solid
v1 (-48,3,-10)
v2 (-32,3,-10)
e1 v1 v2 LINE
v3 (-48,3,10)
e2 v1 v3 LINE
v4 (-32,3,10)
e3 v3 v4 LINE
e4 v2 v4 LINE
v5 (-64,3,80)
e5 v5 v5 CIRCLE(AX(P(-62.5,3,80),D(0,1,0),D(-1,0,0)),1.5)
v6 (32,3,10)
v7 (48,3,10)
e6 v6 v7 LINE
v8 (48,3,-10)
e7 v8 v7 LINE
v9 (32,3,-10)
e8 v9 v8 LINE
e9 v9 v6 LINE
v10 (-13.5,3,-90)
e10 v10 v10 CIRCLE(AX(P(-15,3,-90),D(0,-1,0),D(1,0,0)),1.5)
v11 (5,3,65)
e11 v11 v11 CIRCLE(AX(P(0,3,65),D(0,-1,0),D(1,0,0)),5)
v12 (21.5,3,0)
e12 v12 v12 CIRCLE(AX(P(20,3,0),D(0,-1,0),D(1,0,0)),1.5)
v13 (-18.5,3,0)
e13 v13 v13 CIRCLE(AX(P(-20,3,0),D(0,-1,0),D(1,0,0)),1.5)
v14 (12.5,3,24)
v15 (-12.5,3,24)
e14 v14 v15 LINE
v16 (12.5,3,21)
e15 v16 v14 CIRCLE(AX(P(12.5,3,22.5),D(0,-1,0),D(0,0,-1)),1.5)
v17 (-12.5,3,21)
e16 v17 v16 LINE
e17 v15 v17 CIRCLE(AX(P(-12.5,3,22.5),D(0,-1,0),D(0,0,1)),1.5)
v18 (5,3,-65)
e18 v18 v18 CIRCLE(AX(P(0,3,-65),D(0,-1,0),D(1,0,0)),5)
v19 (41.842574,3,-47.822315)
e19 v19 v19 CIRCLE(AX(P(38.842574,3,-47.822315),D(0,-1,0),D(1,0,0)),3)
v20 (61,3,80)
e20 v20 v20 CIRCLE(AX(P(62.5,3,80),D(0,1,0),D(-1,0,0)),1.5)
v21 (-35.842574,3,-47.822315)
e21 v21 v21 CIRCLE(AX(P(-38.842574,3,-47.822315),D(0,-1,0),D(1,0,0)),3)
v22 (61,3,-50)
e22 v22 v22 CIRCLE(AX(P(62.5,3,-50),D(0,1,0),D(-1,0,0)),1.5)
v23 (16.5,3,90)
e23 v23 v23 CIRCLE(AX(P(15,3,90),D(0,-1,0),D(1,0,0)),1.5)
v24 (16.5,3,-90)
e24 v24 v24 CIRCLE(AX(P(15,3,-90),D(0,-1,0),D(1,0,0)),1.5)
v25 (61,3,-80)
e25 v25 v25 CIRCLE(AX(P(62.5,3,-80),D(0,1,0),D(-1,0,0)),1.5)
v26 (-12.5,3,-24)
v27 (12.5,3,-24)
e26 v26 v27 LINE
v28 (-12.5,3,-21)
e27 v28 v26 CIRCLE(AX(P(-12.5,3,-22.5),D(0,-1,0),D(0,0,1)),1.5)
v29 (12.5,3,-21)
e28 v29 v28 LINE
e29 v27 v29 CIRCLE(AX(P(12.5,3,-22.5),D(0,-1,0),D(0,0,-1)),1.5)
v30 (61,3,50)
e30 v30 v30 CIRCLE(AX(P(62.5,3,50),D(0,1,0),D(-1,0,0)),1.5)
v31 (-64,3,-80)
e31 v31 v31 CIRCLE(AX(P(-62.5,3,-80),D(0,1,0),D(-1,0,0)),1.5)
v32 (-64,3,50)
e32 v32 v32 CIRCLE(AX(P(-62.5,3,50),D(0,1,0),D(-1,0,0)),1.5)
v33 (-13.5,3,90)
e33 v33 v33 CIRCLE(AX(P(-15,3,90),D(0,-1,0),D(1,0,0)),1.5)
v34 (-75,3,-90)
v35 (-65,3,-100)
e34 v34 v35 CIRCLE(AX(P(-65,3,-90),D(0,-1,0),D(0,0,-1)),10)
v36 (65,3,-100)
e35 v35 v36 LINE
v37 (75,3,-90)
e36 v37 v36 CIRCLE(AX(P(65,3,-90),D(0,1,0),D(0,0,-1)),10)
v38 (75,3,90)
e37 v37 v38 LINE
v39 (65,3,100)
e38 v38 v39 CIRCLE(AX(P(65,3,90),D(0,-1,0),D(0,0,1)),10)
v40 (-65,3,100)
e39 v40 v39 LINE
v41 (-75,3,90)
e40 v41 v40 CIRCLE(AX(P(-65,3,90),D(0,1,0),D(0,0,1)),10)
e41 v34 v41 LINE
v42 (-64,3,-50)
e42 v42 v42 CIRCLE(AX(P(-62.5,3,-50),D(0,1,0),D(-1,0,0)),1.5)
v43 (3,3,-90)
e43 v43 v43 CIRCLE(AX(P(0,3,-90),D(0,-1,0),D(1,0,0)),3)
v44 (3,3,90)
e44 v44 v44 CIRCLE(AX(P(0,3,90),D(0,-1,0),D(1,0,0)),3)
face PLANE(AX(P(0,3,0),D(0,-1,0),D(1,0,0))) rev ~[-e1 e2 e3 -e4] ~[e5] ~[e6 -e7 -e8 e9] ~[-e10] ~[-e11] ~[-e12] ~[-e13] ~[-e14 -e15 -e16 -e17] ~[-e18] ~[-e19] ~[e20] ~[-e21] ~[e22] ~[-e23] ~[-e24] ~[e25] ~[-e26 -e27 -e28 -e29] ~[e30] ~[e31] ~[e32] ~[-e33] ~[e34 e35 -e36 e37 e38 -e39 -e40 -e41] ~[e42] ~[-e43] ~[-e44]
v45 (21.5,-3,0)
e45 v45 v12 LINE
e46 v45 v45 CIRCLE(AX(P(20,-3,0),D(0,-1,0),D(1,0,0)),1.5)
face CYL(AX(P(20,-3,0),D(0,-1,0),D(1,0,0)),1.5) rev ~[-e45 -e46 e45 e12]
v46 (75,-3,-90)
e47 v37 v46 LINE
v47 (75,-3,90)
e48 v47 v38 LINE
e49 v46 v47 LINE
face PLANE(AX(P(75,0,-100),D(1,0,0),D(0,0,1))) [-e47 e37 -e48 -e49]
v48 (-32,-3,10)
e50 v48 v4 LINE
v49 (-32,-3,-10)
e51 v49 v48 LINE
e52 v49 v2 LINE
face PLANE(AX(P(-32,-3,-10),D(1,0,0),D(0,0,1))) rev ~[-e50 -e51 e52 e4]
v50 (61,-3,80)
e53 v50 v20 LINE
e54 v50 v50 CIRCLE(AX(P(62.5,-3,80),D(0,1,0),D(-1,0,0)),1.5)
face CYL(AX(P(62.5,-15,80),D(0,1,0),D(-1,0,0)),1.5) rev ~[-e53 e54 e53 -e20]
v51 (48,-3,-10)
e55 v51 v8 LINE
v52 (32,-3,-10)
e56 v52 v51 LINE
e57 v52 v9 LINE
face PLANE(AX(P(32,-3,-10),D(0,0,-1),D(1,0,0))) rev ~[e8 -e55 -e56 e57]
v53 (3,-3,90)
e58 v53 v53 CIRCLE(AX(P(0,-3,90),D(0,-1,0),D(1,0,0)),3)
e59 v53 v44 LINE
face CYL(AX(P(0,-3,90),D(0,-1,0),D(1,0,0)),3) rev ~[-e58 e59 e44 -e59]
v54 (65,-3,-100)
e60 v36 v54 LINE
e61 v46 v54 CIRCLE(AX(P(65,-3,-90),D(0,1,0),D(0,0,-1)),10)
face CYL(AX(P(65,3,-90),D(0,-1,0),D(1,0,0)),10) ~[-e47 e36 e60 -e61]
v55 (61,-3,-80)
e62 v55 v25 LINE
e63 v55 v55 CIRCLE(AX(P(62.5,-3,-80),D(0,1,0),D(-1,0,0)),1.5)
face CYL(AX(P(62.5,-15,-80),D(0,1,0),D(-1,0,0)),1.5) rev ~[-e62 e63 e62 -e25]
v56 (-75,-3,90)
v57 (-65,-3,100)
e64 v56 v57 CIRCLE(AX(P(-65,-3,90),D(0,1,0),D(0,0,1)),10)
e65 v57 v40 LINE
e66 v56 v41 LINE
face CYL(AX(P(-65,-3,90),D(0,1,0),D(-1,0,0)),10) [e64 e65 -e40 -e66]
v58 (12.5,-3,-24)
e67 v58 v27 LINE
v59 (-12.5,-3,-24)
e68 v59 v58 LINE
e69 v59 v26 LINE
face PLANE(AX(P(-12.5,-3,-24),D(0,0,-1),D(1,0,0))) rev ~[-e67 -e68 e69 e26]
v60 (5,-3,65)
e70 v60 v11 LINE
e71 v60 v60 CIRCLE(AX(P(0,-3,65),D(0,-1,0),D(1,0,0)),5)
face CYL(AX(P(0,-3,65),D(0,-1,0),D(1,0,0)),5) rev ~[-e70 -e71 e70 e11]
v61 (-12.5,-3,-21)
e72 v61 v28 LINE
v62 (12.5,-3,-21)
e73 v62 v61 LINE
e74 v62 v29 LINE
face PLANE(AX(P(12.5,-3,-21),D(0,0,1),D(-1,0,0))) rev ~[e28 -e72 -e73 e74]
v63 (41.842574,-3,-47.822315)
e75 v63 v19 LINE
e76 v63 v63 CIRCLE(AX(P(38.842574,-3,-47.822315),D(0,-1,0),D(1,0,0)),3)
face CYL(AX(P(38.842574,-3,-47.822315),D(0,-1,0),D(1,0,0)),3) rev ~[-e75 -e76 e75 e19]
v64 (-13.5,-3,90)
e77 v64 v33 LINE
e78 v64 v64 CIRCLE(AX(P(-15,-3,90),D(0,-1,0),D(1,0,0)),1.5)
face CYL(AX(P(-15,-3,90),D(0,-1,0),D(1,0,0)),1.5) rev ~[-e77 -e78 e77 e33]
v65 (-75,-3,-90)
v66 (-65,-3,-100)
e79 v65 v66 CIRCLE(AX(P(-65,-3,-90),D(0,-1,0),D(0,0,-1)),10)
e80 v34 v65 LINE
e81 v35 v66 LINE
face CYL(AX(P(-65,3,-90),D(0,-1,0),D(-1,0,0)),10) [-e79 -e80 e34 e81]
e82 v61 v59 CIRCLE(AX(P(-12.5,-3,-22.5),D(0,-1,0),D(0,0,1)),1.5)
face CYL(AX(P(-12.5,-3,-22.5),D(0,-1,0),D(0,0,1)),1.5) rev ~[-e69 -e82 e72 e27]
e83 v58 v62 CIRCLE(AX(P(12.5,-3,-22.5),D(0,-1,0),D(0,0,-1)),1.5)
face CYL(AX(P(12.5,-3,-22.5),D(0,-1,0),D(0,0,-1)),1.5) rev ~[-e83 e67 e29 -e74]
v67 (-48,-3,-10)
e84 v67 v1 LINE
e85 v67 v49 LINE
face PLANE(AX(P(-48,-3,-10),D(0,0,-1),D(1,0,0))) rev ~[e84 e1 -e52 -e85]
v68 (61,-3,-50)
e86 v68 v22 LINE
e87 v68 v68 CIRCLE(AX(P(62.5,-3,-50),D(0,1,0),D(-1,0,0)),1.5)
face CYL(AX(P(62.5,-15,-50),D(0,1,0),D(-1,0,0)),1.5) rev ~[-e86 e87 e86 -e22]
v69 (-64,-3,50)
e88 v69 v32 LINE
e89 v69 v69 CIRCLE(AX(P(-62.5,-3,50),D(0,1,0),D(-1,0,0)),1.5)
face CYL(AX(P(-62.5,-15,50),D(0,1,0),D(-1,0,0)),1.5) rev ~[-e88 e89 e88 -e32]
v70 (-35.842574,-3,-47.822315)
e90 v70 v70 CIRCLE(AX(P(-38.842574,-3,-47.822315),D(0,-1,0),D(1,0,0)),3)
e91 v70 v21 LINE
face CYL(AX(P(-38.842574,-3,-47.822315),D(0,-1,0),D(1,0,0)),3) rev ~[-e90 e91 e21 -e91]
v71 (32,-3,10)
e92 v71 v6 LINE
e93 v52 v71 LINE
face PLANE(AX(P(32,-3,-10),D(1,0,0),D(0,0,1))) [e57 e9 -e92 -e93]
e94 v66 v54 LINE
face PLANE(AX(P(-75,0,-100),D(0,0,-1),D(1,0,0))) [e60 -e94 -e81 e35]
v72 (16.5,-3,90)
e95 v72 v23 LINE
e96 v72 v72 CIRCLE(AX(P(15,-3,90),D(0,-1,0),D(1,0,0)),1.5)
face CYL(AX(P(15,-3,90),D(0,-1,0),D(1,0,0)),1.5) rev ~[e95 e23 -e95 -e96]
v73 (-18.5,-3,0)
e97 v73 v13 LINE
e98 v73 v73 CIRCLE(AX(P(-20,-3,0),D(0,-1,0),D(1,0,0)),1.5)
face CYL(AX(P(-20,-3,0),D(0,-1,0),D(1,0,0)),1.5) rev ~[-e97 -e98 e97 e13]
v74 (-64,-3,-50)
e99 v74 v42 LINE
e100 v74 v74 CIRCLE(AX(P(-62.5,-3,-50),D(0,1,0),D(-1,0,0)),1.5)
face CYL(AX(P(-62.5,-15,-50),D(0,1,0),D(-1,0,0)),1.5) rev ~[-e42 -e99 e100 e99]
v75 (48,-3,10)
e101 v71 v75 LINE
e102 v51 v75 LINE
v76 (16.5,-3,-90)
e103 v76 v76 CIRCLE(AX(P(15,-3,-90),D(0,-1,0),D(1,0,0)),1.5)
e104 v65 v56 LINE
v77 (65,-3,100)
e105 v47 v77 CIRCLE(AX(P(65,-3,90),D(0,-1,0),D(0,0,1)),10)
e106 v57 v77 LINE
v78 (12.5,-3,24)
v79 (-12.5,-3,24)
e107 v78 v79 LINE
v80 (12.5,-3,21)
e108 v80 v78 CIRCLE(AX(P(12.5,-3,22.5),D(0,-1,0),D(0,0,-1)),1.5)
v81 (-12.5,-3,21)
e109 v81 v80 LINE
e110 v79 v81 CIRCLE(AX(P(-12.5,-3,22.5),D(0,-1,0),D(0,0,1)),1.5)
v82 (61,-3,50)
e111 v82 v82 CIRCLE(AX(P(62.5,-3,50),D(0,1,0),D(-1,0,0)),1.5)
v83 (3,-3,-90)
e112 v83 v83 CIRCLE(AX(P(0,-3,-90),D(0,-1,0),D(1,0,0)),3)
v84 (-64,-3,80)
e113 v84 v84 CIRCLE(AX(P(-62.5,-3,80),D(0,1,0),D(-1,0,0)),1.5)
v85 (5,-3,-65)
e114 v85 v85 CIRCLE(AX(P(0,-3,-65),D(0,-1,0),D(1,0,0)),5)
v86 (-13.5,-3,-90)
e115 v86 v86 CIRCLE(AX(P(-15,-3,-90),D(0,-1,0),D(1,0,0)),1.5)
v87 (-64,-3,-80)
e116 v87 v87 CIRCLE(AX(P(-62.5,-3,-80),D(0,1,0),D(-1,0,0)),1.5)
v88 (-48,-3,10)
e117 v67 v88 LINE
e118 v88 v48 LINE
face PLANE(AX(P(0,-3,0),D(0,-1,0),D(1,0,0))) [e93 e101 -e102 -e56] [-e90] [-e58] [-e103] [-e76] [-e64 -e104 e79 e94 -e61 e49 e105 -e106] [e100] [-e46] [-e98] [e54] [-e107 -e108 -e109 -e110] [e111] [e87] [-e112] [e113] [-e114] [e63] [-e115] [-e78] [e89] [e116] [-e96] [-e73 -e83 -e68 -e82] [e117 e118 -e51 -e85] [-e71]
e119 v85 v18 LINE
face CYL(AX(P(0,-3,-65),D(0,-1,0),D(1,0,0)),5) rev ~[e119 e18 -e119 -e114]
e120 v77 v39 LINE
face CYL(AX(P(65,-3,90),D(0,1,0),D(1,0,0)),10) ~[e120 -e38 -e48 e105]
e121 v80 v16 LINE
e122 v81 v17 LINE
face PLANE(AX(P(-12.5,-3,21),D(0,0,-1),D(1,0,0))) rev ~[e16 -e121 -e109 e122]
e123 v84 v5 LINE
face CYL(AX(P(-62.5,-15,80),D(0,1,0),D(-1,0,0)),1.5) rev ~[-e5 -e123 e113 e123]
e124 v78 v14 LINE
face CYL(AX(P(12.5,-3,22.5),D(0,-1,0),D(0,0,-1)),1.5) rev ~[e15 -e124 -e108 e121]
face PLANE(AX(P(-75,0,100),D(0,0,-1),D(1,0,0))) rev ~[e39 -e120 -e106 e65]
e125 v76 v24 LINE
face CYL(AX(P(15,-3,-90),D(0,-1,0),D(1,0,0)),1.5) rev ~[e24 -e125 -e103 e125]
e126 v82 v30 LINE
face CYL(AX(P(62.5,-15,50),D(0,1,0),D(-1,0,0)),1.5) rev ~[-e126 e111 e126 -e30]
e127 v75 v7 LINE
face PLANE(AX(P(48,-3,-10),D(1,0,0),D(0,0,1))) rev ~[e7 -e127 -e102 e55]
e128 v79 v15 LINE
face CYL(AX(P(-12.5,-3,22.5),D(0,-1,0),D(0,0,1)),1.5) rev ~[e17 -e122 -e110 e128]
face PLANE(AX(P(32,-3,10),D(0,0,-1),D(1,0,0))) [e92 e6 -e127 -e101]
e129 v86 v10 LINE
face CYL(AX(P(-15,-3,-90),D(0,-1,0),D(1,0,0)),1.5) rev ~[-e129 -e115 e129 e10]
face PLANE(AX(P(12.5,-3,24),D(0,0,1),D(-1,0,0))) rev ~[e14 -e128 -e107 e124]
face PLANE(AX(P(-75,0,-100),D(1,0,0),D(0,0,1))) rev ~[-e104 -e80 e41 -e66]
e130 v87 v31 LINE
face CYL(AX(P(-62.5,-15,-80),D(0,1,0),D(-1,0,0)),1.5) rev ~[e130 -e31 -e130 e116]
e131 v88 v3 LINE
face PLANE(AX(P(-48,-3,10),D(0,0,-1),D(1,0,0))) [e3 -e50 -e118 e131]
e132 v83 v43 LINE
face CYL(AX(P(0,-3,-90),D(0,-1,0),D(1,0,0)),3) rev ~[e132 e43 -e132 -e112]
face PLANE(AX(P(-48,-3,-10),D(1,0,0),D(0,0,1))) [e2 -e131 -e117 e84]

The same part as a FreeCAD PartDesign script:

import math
import FreeCAD as App
import Part
import Sketcher
Q = App.Units.Quantity


def edges_at(feature, points):
    """Names of the edges that pass closest to the given points."""
    edges = feature.Shape.Edges
    near = lambda p: min(range(len(edges)), key=lambda i: edges[i].distToShape(Part.Vertex(*p))[0])
    return sorted({f"Edge{near(p) + 1}" for p in points})


def add_polygon(sketch, points):
    """Adds a closed chain of lines whose ends are joined by coincident constraints."""
    first, n = sketch.GeometryCount, len(points)
    for a, b in zip(points, points[1:] + points[:1]):
        sketch.addGeometry(Part.LineSegment(App.Vector(*a, 0), App.Vector(*b, 0)), False)
    for i in range(n):
        sketch.addConstraint(Sketcher.Constraint("Coincident", first + i, 2, first + (i + 1) % n, 1))

doc = App.newDocument("Part")
body = doc.addObject("PartDesign::Body", "Body")

# Sketch on XZ plane
sketch1 = body.newObject("Sketcher::SketchObject", "Sketch")
sketch1.AttachmentSupport = (doc.getObject("XZ_Plane"), [""])
sketch1.MapMode = "FlatFace"
add_polygon(sketch1, [(-75, 100), (-75, -100), (75, -100), (75, 100)])  # lines 0-3
sketch1.addConstraint([
    Sketcher.Constraint("Vertical", 0),
    Sketcher.Constraint("Horizontal", 1),
    Sketcher.Constraint("Vertical", 2),
    Sketcher.Constraint("Horizontal", 3),
    Sketcher.Constraint("Symmetric", 0, 2, 2, 2, -1, 1),
    Sketcher.Constraint("DistanceX", 1, 1, 1, 2, Q("150 mm")),
    Sketcher.Constraint("DistanceY", 0, 2, 0, 1, Q("200 mm")),
])
pad1 = body.newObject("PartDesign::Pad", "Pad")
pad1.Profile = sketch1
pad1.Type = "TwoLengths"
pad1.Length = 3
pad1.Length2 = 3
doc.recompute()

fillet = body.newObject("PartDesign::Fillet", "Fillet")
fillet.Base = (pad1, edges_at(pad1, [
    (-75, 0, -100),
    (75, 0, -100),
    (75, 0, 100),
    (-75, 0, 100),
]))
fillet.Radius = 10

# Sketch on XZ plane
sketch2 = body.newObject("Sketcher::SketchObject", "Sketch001")
sketch2.AttachmentSupport = (doc.getObject("XZ_Plane"), [""])
sketch2.MapMode = "FlatFace"
sketch2.AttachmentOffset = App.Placement(App.Vector(0, 0, 3), App.Rotation())
sketch2.addGeometry([
    Part.Circle(App.Vector(62.5, -80, 0), App.Vector(0, 0, 1), 1.5),  # 0
    Part.Circle(App.Vector(62.5, -50, 0), App.Vector(0, 0, 1), 1.5),  # 1
    Part.Circle(App.Vector(62.5, 50, 0), App.Vector(0, 0, 1), 1.5),  # 2
    Part.Circle(App.Vector(62.5, 80, 0), App.Vector(0, 0, 1), 1.5),  # 3
    Part.Circle(App.Vector(-62.5, 80, 0), App.Vector(0, 0, 1), 1.5),  # 4
    Part.Circle(App.Vector(-62.5, 50, 0), App.Vector(0, 0, 1), 1.5),  # 5
    Part.Circle(App.Vector(-62.5, -50, 0), App.Vector(0, 0, 1), 1.5),  # 6
    Part.Circle(App.Vector(-62.5, -80, 0), App.Vector(0, 0, 1), 1.5),  # 7
], False)
sketch2.addConstraint([
    Sketcher.Constraint("Equal", 0, 1),
    Sketcher.Constraint("Equal", 1, 2),
    Sketcher.Constraint("Equal", 2, 3),
    Sketcher.Constraint("Equal", 3, 4),
    Sketcher.Constraint("Equal", 4, 5),
    Sketcher.Constraint("Equal", 5, 6),
    Sketcher.Constraint("Equal", 6, 7),
    Sketcher.Constraint("Symmetric", 0, 3, 4, 3, -1, 1),
    Sketcher.Constraint("Symmetric", 1, 3, 5, 3, -1, 1),
    Sketcher.Constraint("Symmetric", 2, 3, 6, 3, -1, 1),
    Sketcher.Constraint("Symmetric", 3, 3, 7, 3, -1, 1),
    Sketcher.Constraint("Symmetric", 3, 3, 4, 3, -2),
    Sketcher.Constraint("Symmetric", 2, 3, 5, 3, -2),
    Sketcher.Constraint("Vertical", 0, 3, 1, 3),
    Sketcher.Constraint("Diameter", 0, Q("3 mm")),
    Sketcher.Constraint("DistanceY", 0, 3, -1, 1, Q("80 mm")),
    Sketcher.Constraint("DistanceY", 1, 3, -1, 1, Q("50 mm")),
    Sketcher.Constraint("DistanceX", 4, 3, 3, 3, Q("125 mm")),
])
doc.recompute()
hole = body.newObject("PartDesign::Hole", "Hole")
hole.Profile = sketch2
hole.ThreadType = "None"
hole.Diameter = 3
hole.DepthType = "Dimension"
hole.Depth = 12
hole.DrillPoint = "Flat"

# Sketch on XZ plane
sketch3 = body.newObject("Sketcher::SketchObject", "Sketch002")
sketch3.AttachmentSupport = (doc.getObject("XZ_Plane"), [""])
sketch3.MapMode = "FlatFace"
sketch3.AttachmentOffset = App.Placement(App.Vector(0, 0, 3), App.Rotation())
add_polygon(sketch3, [(-48, 10), (-48, -10), (-32, -10), (-32, 10)])  # lines 0-3
sketch3.addGeometry(Part.ArcOfCircle(Part.Circle(App.Vector(12.5, 22.5, 0), App.Vector(0, 0, 1), 1.5), math.radians(-90), math.radians(90)), False)  # 4
sketch3.addGeometry(Part.LineSegment(App.Vector(12.5, 24, 0), App.Vector(-12.5, 24, 0)), False)  # 5
sketch3.addGeometry(Part.ArcOfCircle(Part.Circle(App.Vector(-12.5, 22.5, 0), App.Vector(0, 0, 1), 1.5), math.radians(90), math.radians(270)), False)  # 6
sketch3.addGeometry(Part.LineSegment(App.Vector(-12.5, 21, 0), App.Vector(12.5, 21, 0)), False)  # 7
sketch3.addGeometry(Part.ArcOfCircle(Part.Circle(App.Vector(12.5, -22.5, 0), App.Vector(0, 0, 1), 1.5), math.radians(-90), math.radians(90)), False)  # 8
sketch3.addGeometry(Part.LineSegment(App.Vector(12.5, -21, 0), App.Vector(-12.5, -21, 0)), False)  # 9
sketch3.addGeometry(Part.ArcOfCircle(Part.Circle(App.Vector(-12.5, -22.5, 0), App.Vector(0, 0, 1), 1.5), math.radians(90), math.radians(270)), False)  # 10
sketch3.addGeometry(Part.LineSegment(App.Vector(-12.5, -24, 0), App.Vector(12.5, -24, 0)), False)  # 11
add_polygon(sketch3, [(32, 10), (32, -10), (48, -10), (48, 10)])  # lines 12-15
sketch3.addGeometry(Part.Circle(App.Vector(20, 0, 0), App.Vector(0, 0, 1), 1.5), False)  # 16
sketch3.addGeometry(Part.Circle(App.Vector(0, -65, 0), App.Vector(0, 0, 1), 5), False)  # 17
sketch3.addGeometry(Part.Circle(App.Vector(-38.8, -47.8, 0), App.Vector(0, 0, 1), 3), False)  # 18
sketch3.addGeometry(Part.Circle(App.Vector(38.8, -47.8, 0), App.Vector(0, 0, 1), 3), False)  # 19
sketch3.addGeometry(Part.Circle(App.Vector(0, -90, 0), App.Vector(0, 0, 1), 3), False)  # 20
sketch3.addGeometry(Part.Circle(App.Vector(-20, 0, 0), App.Vector(0, 0, 1), 1.5), False)  # 21
sketch3.addGeometry(Part.Circle(App.Vector(15, -90, 0), App.Vector(0, 0, 1), 1.5), False)  # 22
sketch3.addGeometry(Part.Circle(App.Vector(-15, -90, 0), App.Vector(0, 0, 1), 1.5), False)  # 23
sketch3.addGeometry(Part.Circle(App.Vector(0, 65, 0), App.Vector(0, 0, 1), 5), False)  # 24
sketch3.addGeometry(Part.Circle(App.Vector(0, 90, 0), App.Vector(0, 0, 1), 3), False)  # 25
sketch3.addGeometry(Part.Circle(App.Vector(-15, 90, 0), App.Vector(0, 0, 1), 1.5), False)  # 26
sketch3.addGeometry(Part.Circle(App.Vector(15, 90, 0), App.Vector(0, 0, 1), 1.5), False)  # 27
sketch3.addConstraint([
    Sketcher.Constraint("Tangent", 4, 2, 5, 1),
    Sketcher.Constraint("Tangent", 5, 2, 6, 1),
    Sketcher.Constraint("Tangent", 6, 2, 7, 1),
    Sketcher.Constraint("Tangent", 7, 2, 4, 1),
    Sketcher.Constraint("Tangent", 8, 2, 9, 1),
    Sketcher.Constraint("Tangent", 9, 2, 10, 1),
    Sketcher.Constraint("Tangent", 10, 2, 11, 1),
    Sketcher.Constraint("Tangent", 11, 2, 8, 1),
    Sketcher.Constraint("Vertical", 0),
    Sketcher.Constraint("Horizontal", 1),
    Sketcher.Constraint("Vertical", 2),
    Sketcher.Constraint("Horizontal", 3),
    Sketcher.Constraint("Horizontal", 5),
    Sketcher.Constraint("Horizontal", 7),
    Sketcher.Constraint("Horizontal", 9),
    Sketcher.Constraint("Horizontal", 11),
    Sketcher.Constraint("Vertical", 12),
    Sketcher.Constraint("Horizontal", 13),
    Sketcher.Constraint("Vertical", 14),
    Sketcher.Constraint("Horizontal", 15),
    Sketcher.Constraint("Equal", 6, 8),
    Sketcher.Constraint("Equal", 10, 16),
    Sketcher.Constraint("Equal", 18, 19),
    Sketcher.Constraint("Equal", 19, 20),
    Sketcher.Constraint("Equal", 16, 21),
    Sketcher.Constraint("Equal", 21, 22),
    Sketcher.Constraint("Equal", 22, 23),
    Sketcher.Constraint("Equal", 17, 24),
    Sketcher.Constraint("Equal", 20, 25),
    Sketcher.Constraint("Equal", 23, 26),
    Sketcher.Constraint("Equal", 26, 27),
    Sketcher.Constraint("Symmetric", 6, 3, 8, 3, -1, 1),
    Sketcher.Constraint("Symmetric", 16, 3, 21, 3, -1, 1),
    Sketcher.Constraint("Symmetric", 17, 3, 24, 3, -1, 1),
    Sketcher.Constraint("Symmetric", 20, 3, 25, 3, -1, 1),
    Sketcher.Constraint("Symmetric", 22, 3, 26, 3, -1, 1),
    Sketcher.Constraint("Symmetric", 23, 3, 27, 3, -1, 1),
    Sketcher.Constraint("Symmetric", 2, 2, 12, 2, -1, 1),
    Sketcher.Constraint("Symmetric", 0, 2, 14, 2, -1, 1),
    Sketcher.Constraint("Symmetric", 18, 3, 19, 3, -2),
    Sketcher.Constraint("Symmetric", 22, 3, 23, 3, -2),
    Sketcher.Constraint("PointOnObject", 16, 3, -1),
    Sketcher.Constraint("PointOnObject", 17, 3, -2),
    Sketcher.Constraint("PointOnObject", 20, 3, -2),
    Sketcher.Constraint("Horizontal", 20, 3, 22, 3),
    Sketcher.Constraint("Horizontal", 1, 2, 12, 2),
    Sketcher.Constraint("Vertical", 4, 3, 8, 3),
    Sketcher.Constraint("Vertical", 6, 3, 10, 3),
    Sketcher.Constraint("Diameter", 16, Q("3 mm")),
    Sketcher.Constraint("Diameter", 17, Q("10 mm")),
    Sketcher.Constraint("Diameter", 18, Q("6 mm")),
    Sketcher.Constraint("DistanceX", 1, 1, 1, 2, Q("16 mm")),
    Sketcher.Constraint("DistanceX", 5, 2, 5, 1, Q("25 mm")),
    Sketcher.Constraint("DistanceY", 0, 2, 0, 1, Q("20 mm")),
    Sketcher.Constraint("DistanceX", -1, 1, 16, 3, Q("20 mm")),
    Sketcher.Constraint("DistanceY", 17, 3, -1, 1, Q("65 mm")),
    Sketcher.Constraint("DistanceY", 20, 3, -1, 1, Q("90 mm")),
    Sketcher.Constraint("DistanceX", -1, 1, 22, 3, Q("15 mm")),
    Sketcher.Constraint("DistanceX", 0, 2, -1, 1, Q("48 mm")),
    Sketcher.Constraint("DistanceY", -1, 1, 4, 2, Q("24 mm")),
    Sketcher.Constraint("DistanceX", 18, 3, -1, 1, Q("38.842574 mm")),
    Sketcher.Constraint("DistanceY", 18, 3, -1, 1, Q("47.822315 mm")),
])
pocket1 = body.newObject("PartDesign::Pocket", "Pocket")
pocket1.Profile = sketch3
pocket1.Length = 25

doc.recompute()
